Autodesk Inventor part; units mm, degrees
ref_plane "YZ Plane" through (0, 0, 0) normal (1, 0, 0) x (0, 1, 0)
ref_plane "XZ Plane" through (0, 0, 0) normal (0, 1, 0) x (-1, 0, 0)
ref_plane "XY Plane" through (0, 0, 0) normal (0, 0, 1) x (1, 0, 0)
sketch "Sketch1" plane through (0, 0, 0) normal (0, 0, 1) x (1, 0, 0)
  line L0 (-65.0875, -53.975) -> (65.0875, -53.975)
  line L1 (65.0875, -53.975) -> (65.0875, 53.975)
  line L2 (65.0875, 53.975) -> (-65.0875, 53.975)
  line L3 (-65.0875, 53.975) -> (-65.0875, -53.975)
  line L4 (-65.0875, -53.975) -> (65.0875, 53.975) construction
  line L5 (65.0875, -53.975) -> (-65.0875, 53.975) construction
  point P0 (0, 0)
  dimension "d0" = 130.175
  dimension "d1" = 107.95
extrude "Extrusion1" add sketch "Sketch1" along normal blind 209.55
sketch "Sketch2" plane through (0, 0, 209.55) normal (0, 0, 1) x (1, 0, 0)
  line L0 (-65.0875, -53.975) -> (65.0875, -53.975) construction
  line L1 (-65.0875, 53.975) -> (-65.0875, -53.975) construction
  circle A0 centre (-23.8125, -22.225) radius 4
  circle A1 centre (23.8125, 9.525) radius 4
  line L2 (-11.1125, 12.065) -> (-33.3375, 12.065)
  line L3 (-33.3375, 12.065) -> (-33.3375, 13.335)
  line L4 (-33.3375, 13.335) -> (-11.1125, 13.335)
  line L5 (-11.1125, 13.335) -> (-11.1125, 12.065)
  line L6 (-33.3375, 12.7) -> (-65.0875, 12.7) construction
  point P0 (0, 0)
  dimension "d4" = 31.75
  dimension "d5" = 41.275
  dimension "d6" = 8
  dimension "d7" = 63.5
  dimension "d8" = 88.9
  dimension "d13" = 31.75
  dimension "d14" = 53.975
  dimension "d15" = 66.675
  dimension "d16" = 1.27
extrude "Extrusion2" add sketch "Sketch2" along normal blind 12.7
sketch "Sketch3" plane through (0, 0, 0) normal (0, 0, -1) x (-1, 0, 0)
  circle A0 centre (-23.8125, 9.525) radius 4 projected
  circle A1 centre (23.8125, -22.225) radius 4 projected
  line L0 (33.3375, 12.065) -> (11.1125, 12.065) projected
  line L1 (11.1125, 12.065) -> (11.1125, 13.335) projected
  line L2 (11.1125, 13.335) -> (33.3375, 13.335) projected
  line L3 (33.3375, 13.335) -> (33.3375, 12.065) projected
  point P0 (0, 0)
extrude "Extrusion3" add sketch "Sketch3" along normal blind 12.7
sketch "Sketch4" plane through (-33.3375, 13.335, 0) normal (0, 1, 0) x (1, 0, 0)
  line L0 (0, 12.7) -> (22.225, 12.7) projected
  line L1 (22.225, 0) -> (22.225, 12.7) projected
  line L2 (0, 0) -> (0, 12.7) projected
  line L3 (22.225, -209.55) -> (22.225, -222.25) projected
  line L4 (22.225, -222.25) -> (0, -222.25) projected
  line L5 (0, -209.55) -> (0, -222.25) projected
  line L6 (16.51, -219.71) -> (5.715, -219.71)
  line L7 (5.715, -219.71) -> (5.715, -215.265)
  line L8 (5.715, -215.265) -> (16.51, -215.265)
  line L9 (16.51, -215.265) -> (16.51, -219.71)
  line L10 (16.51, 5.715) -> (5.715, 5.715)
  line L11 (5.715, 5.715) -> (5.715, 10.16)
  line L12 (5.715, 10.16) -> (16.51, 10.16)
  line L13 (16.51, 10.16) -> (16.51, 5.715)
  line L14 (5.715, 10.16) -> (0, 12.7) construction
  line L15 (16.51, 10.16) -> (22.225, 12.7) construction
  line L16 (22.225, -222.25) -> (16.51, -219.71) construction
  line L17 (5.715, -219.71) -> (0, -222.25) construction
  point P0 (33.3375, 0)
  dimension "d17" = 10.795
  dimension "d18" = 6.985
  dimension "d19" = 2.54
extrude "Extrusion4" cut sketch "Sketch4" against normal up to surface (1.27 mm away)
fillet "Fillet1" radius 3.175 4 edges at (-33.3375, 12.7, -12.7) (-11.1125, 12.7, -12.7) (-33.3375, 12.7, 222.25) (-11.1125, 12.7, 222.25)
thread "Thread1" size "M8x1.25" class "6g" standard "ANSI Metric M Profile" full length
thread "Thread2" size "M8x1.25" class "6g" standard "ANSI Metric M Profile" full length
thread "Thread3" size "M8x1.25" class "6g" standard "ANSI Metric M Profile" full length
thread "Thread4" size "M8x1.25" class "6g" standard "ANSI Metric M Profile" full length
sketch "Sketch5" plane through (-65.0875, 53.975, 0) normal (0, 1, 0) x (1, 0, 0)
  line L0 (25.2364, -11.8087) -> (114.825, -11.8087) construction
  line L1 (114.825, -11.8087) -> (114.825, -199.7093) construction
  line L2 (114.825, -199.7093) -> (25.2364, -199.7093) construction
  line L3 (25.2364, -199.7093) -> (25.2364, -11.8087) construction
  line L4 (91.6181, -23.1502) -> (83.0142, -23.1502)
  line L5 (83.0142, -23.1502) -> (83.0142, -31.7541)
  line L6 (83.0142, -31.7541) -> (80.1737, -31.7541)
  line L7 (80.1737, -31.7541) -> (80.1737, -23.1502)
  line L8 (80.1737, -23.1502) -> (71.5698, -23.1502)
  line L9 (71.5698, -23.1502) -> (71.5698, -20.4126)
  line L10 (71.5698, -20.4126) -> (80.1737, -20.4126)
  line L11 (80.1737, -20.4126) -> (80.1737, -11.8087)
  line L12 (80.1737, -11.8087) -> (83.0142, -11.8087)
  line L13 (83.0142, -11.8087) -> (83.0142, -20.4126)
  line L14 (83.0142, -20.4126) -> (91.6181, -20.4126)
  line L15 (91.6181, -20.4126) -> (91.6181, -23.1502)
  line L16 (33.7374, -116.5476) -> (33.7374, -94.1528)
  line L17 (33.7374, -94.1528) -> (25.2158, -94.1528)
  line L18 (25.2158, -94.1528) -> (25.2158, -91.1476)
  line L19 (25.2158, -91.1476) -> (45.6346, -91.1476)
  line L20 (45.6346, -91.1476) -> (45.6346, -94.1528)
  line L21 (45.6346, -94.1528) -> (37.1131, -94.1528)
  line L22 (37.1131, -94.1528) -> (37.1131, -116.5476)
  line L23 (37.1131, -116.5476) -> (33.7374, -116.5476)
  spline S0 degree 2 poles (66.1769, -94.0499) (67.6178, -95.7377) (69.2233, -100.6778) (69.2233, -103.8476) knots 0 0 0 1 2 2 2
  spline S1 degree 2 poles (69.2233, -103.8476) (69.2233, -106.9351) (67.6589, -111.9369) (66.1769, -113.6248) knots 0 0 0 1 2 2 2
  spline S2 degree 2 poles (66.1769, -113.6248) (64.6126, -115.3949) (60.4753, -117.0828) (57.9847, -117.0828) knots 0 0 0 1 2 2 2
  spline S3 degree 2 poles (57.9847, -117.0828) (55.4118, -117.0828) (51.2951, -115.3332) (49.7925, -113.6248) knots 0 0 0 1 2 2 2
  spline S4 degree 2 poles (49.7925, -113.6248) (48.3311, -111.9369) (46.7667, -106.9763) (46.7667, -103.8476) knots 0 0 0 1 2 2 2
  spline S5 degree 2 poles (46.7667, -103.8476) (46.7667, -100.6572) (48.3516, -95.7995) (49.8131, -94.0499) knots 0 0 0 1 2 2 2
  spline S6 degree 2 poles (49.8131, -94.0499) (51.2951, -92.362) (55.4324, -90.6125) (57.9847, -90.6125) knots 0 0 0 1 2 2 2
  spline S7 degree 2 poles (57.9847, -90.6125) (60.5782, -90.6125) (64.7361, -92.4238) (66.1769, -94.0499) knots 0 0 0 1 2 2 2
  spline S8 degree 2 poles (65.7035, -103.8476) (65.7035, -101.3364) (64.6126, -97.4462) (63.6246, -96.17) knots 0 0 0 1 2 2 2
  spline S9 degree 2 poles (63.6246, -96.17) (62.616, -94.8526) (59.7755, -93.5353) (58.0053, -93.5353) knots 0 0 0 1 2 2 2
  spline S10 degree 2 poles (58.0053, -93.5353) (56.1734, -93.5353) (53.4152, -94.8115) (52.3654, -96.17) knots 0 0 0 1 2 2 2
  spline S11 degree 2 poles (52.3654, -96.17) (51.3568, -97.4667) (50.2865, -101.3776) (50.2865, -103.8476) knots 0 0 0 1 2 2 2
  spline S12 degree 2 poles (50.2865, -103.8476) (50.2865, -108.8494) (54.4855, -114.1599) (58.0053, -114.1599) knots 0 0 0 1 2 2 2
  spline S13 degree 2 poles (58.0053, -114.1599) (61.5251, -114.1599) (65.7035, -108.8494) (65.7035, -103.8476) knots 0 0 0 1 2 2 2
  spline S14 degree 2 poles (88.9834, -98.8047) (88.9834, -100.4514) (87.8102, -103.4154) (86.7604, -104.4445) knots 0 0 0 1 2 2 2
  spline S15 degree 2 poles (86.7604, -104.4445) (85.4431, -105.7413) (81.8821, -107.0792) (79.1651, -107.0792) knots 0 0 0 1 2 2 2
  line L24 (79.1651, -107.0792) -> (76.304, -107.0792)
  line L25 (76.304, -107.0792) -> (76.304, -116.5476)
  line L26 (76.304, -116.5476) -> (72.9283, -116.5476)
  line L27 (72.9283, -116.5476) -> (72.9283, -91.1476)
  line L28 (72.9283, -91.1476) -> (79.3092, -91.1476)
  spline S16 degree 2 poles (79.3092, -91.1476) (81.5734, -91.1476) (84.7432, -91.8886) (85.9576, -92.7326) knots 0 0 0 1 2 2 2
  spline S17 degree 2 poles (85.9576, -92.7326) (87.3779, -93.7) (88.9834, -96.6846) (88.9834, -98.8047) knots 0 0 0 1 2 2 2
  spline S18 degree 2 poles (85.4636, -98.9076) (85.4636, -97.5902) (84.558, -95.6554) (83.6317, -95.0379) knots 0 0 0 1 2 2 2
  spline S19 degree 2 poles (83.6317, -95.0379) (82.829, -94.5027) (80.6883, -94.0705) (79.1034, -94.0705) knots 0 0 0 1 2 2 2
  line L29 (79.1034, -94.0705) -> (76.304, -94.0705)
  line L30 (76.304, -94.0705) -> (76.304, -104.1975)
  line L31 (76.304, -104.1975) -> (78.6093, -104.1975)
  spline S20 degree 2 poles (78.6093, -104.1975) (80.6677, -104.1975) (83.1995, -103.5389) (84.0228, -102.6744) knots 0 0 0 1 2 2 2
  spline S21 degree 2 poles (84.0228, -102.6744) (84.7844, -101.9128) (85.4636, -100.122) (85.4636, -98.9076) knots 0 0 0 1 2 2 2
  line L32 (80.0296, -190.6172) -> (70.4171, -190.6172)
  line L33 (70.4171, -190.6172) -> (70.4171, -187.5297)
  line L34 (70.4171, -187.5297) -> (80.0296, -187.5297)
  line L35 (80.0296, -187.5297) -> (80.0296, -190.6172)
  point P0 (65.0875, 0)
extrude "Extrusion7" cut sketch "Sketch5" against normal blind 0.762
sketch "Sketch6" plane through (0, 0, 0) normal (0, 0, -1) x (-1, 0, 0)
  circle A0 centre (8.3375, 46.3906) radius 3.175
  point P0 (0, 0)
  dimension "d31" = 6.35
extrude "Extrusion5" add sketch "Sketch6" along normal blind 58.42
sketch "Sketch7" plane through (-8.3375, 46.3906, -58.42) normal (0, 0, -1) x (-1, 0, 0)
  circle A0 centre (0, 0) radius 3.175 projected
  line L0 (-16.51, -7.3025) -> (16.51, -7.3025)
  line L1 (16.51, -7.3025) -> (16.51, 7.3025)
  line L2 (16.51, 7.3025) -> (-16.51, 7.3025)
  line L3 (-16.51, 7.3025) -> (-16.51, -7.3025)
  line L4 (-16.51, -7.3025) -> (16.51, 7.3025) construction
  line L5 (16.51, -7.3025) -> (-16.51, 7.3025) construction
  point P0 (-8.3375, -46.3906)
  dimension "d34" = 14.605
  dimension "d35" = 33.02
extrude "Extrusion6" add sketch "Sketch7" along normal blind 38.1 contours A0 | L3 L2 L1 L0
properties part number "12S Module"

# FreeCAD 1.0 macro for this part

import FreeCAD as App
import Part
import Sketcher
Q = App.Units.Quantity


def edges_at(feature, points):
    """Names of the edges that pass closest to the given points."""
    edges = feature.Shape.Edges
    near = lambda p: min(range(len(edges)), key=lambda i: edges[i].distToShape(Part.Vertex(*p))[0])
    return sorted({f"Edge{near(p) + 1}" for p in points})

doc = App.newDocument("Part")
body = doc.addObject("PartDesign::Body", "Body")

# Sketch on XY plane
sketch1 = body.newObject("Sketcher::SketchObject", "Sketch")
sketch1.AttachmentSupport = (doc.getObject("XY_Plane"), [""])
sketch1.MapMode = "FlatFace"
sketch1.addGeometry([
    Part.LineSegment(App.Vector(-65.0875, 53.975, 0), App.Vector(-65.0875, -53.975, 0)),
    Part.LineSegment(App.Vector(-65.0875, -53.975, 0), App.Vector(65.0875, -53.975, 0)),
    Part.LineSegment(App.Vector(65.0875, -53.975, 0), App.Vector(65.0875, 53.975, 0)),
    Part.LineSegment(App.Vector(65.0875, 53.975, 0), App.Vector(-65.0875, 53.975, 0)),
], False)
sketch1.addConstraint([
    Sketcher.Constraint("Coincident", 0, 2, 1, 1),
    Sketcher.Constraint("Coincident", 1, 2, 2, 1),
    Sketcher.Constraint("Coincident", 2, 2, 3, 1),
    Sketcher.Constraint("Coincident", 3, 2, 0, 1),
    Sketcher.Constraint("Vertical", 0),
    Sketcher.Constraint("Horizontal", 1),
    Sketcher.Constraint("Vertical", 2),
    Sketcher.Constraint("Horizontal", 3),
    Sketcher.Constraint("Symmetric", 0, 2, 2, 2, -1, 1),
    Sketcher.Constraint("DistanceY", 0, 2, 0, 1, Q("4.25 in")),
    Sketcher.Constraint("DistanceX", 1, 1, 1, 2, Q("5.125 in")),
])
pad1 = body.newObject("PartDesign::Pad", "Pad")
pad1.Profile = sketch1
pad1.Length = Q("8.25 in")

# Sketch on XY plane
sketch2 = body.newObject("Sketcher::SketchObject", "Sketch001")
sketch2.AttachmentSupport = (doc.getObject("XY_Plane"), [""])
sketch2.MapMode = "FlatFace"
sketch2.AttachmentOffset = App.Placement(App.Vector(0, 0, 8.25 * 25.4), App.Rotation())
sketch2.addGeometry([
    Part.Circle(App.Vector(-23.8125, -22.225, 0), App.Vector(0, 0, 1), 4),  # 0
    Part.Circle(App.Vector(23.8125, 9.525, 0), App.Vector(0, 0, 1), 4),  # 1
    Part.LineSegment(App.Vector(-33.3375, 12.065, 0), App.Vector(-11.1125, 12.065, 0)),  # 2
    Part.LineSegment(App.Vector(-11.1125, 12.065, 0), App.Vector(-11.1125, 13.335, 0)),  # 3
    Part.LineSegment(App.Vector(-11.1125, 13.335, 0), App.Vector(-33.3375, 13.335, 0)),  # 4
    Part.LineSegment(App.Vector(-33.3375, 13.335, 0), App.Vector(-33.3375, 12.065, 0)),  # 5
], False)
sketch2.addConstraint([
    Sketcher.Constraint("Coincident", 2, 2, 3, 1),
    Sketcher.Constraint("Coincident", 3, 2, 4, 1),
    Sketcher.Constraint("Coincident", 4, 2, 5, 1),
    Sketcher.Constraint("Coincident", 5, 2, 2, 1),
    Sketcher.Constraint("Horizontal", 2),
    Sketcher.Constraint("Vertical", 3),
    Sketcher.Constraint("Horizontal", 4),
    Sketcher.Constraint("Vertical", 5),
    Sketcher.Constraint("Equal", 0, 1),
    Sketcher.Constraint("DistanceY", 3, 1, 3, 2, Q("0.05 in")),
    Sketcher.Constraint("Diameter", 0, Q("8 mm")),
    Sketcher.Constraint("DistanceY", 0, 3, 1, 3, Q("1.25 in")),
    Sketcher.Constraint("DistanceY", 1, 3, 2, 2, Q("0.1 in")),
    Sketcher.Constraint("DistanceX", 0, 3, 2, 2, Q("0.5 in")),
    Sketcher.Constraint("DistanceX", 2, 1, 2, 2, Q("0.875 in")),
    Sketcher.Constraint("DistanceX", 4, 2, 1, 3, Q("2.25 in")),
    Sketcher.Constraint("DistanceX", 0, 3, -1, 1, Q("0.9375 in")),
    Sketcher.Constraint("DistanceY", 0, 3, -1, 1, Q("0.875 in")),
])
pad2 = body.newObject("PartDesign::Pad", "Pad001")
pad2.Profile = sketch2
pad2.Length = Q("0.5 in")

# Sketch on XY plane
sketch3 = body.newObject("Sketcher::SketchObject", "Sketch002")
sketch3.AttachmentSupport = (doc.getObject("XY_Plane"), [""])
sketch3.MapMode = "FlatFace"
sketch3.addGeometry([
    Part.Circle(App.Vector(23.8125, 9.525, 0), App.Vector(0, 0, 1), 4),  # 0
    Part.Circle(App.Vector(-23.8125, -22.225, 0), App.Vector(0, 0, 1), 4),  # 1
    Part.LineSegment(App.Vector(-11.1125, 12.065, 0), App.Vector(-33.3375, 12.065, 0)),  # 2
    Part.LineSegment(App.Vector(-33.3375, 12.065, 0), App.Vector(-33.3375, 13.335, 0)),  # 3
    Part.LineSegment(App.Vector(-33.3375, 13.335, 0), App.Vector(-11.1125, 13.335, 0)),  # 4
    Part.LineSegment(App.Vector(-11.1125, 13.335, 0), App.Vector(-11.1125, 12.065, 0)),  # 5
], False)
sketch3.addConstraint([
    Sketcher.Constraint("Coincident", 2, 2, 3, 1),
    Sketcher.Constraint("Coincident", 3, 2, 4, 1),
    Sketcher.Constraint("Coincident", 4, 2, 5, 1),
    Sketcher.Constraint("Coincident", 5, 2, 2, 1),
    Sketcher.Constraint("Horizontal", 2),
    Sketcher.Constraint("Vertical", 3),
    Sketcher.Constraint("Horizontal", 4),
    Sketcher.Constraint("Vertical", 5),
    Sketcher.Constraint("Equal", 0, 1),
    Sketcher.Constraint("DistanceY", 3, 1, 3, 2, Q("0.05 in")),
    Sketcher.Constraint("DistanceY", 0, 3, 2, 2, Q("0.1 in")),
    Sketcher.Constraint("DistanceY", 1, 3, 3, 2, Q("1.4 in")),
    Sketcher.Constraint("DistanceX", 1, 3, 4, 2, Q("0.5 in")),
    Sketcher.Constraint("Diameter", 0, Q("8 mm")),
    Sketcher.Constraint("DistanceX", 2, 2, 2, 1, Q("0.875 in")),
    Sketcher.Constraint("DistanceX", 2, 2, 0, 3, Q("2.25 in")),
    Sketcher.Constraint("DistanceX", -1, 1, 0, 3, Q("0.9375 in")),
    Sketcher.Constraint("DistanceY", -1, 1, 0, 3, Q("0.375 in")),
])
pad3 = body.newObject("PartDesign::Pad", "Pad002")
pad3.Profile = sketch3
pad3.Length = Q("0.5 in")
pad3.Reversed = True

# Sketch on XZ plane
sketch4 = body.newObject("Sketcher::SketchObject", "Sketch003")
sketch4.AttachmentSupport = (doc.getObject("XZ_Plane"), [""])
sketch4.MapMode = "FlatFace"
sketch4.AttachmentOffset = App.Placement(App.Vector(0, 0, -0.525 * 25.4), App.Rotation())
sketch4.addGeometry([
    Part.LineSegment(App.Vector(-27.6225, 219.71, 0), App.Vector(-16.8275, 219.71, 0)),  # 0
    Part.LineSegment(App.Vector(-16.8275, 219.71, 0), App.Vector(-16.8275, 215.265, 0)),  # 1
    Part.LineSegment(App.Vector(-16.8275, 215.265, 0), App.Vector(-27.6225, 215.265, 0)),  # 2
    Part.LineSegment(App.Vector(-27.6225, 215.265, 0), App.Vector(-27.6225, 219.71, 0)),  # 3
    Part.LineSegment(App.Vector(-27.6225, -5.715, 0), App.Vector(-16.8275, -5.715, 0)),  # 4
    Part.LineSegment(App.Vector(-16.8275, -5.715, 0), App.Vector(-16.8275, -10.16, 0)),  # 5
    Part.LineSegment(App.Vector(-16.8275, -10.16, 0), App.Vector(-27.6225, -10.16, 0)),  # 6
    Part.LineSegment(App.Vector(-27.6225, -10.16, 0), App.Vector(-27.6225, -5.715, 0)),  # 7
], False)
sketch4.addConstraint([
    Sketcher.Constraint("Coincident", 0, 2, 1, 1),
    Sketcher.Constraint("Coincident", 1, 2, 2, 1),
    Sketcher.Constraint("Coincident", 2, 2, 3, 1),
    Sketcher.Constraint("Coincident", 3, 2, 0, 1),
    Sketcher.Constraint("Coincident", 4, 2, 5, 1),
    Sketcher.Constraint("Coincident", 5, 2, 6, 1),
    Sketcher.Constraint("Coincident", 6, 2, 7, 1),
    Sketcher.Constraint("Coincident", 7, 2, 4, 1),
    Sketcher.Constraint("Horizontal", 0),
    Sketcher.Constraint("Vertical", 1),
    Sketcher.Constraint("Horizontal", 2),
    Sketcher.Constraint("Vertical", 3),
    Sketcher.Constraint("Horizontal", 4),
    Sketcher.Constraint("Vertical", 5),
    Sketcher.Constraint("Horizontal", 6),
    Sketcher.Constraint("Vertical", 7),
    Sketcher.Constraint("Vertical", 1, 2, 4, 2),
    Sketcher.Constraint("Vertical", 3, 2, 6, 2),
    Sketcher.Constraint("Equal", 3, 5),
    Sketcher.Constraint("DistanceX", 0, 1, 0, 2, Q("0.425 in")),
    Sketcher.Constraint("DistanceY", 5, 2, -1, 1, Q("0.4 in")),
    Sketcher.Constraint("DistanceY", 4, 2, 1, 2, Q("8.7 in")),
    Sketcher.Constraint("DistanceY", 1, 2, 1, 1, Q("0.175 in")),
    Sketcher.Constraint("DistanceX", 0, 2, -1, 1, Q("0.6625 in")),
])
pocket1 = body.newObject("PartDesign::Pocket", "Pocket")
pocket1.Profile = sketch4
pocket1.Length = Q("0.05 in")
pocket1.Reversed = True
doc.recompute()

fillet = body.newObject("PartDesign::Fillet", "Fillet")
fillet.Base = (pocket1, edges_at(pocket1, [
    (-33.337, 12.7, -12.7),
    (-11.113, 12.7, -12.7),
    (-33.337, 12.7, 222.25),
    (-11.113, 12.7, 222.25),
]))
fillet.Radius = Q("0.125 in")

# Sketch on XZ plane
sketch5 = body.newObject("Sketcher::SketchObject", "Sketch004")
sketch5.AttachmentSupport = (doc.getObject("XZ_Plane"), [""])
sketch5.MapMode = "FlatFace"
sketch5.AttachmentOffset = App.Placement(App.Vector(0, 0, -2.125 * 25.4), App.Rotation())
sketch5.addGeometry([
    Part.LineSegment(App.Vector(17.9267, 23.1502, 0), App.Vector(26.5306, 23.1502, 0)),  # 0
    Part.LineSegment(App.Vector(26.5306, 23.1502, 0), App.Vector(26.5306, 20.4126, 0)),  # 1
    Part.LineSegment(App.Vector(26.5306, 20.4126, 0), App.Vector(17.9267, 20.4126, 0)),  # 2
    Part.LineSegment(App.Vector(17.9267, 20.4126, 0), App.Vector(17.9267, 11.8087, 0)),  # 3
    Part.LineSegment(App.Vector(17.9267, 11.8087, 0), App.Vector(15.0862, 11.8087, 0)),  # 4
    Part.LineSegment(App.Vector(15.0862, 11.8087, 0), App.Vector(15.0862, 20.4126, 0)),  # 5
    Part.LineSegment(App.Vector(15.0862, 20.4126, 0), App.Vector(6.4823, 20.4126, 0)),  # 6
    Part.LineSegment(App.Vector(6.4823, 20.4126, 0), App.Vector(6.4823, 23.1502, 0)),  # 7
    Part.LineSegment(App.Vector(6.4823, 23.1502, 0), App.Vector(15.0862, 23.1502, 0)),  # 8
    Part.LineSegment(App.Vector(15.0862, 23.1502, 0), App.Vector(15.0862, 31.7541, 0)),  # 9
    Part.LineSegment(App.Vector(15.0862, 31.7541, 0), App.Vector(17.9267, 31.7541, 0)),  # 10
    Part.LineSegment(App.Vector(17.9267, 31.7541, 0), App.Vector(17.9267, 23.1502, 0)),  # 11
    Part.LineSegment(App.Vector(-31.3501, 94.1528, 0), App.Vector(-31.3501, 116.5476, 0)),  # 12
    Part.LineSegment(App.Vector(-31.3501, 116.5476, 0), App.Vector(-27.9744, 116.5476, 0)),  # 13
    Part.LineSegment(App.Vector(-27.9744, 116.5476, 0), App.Vector(-27.9744, 94.1528, 0)),  # 14
    Part.LineSegment(App.Vector(-27.9744, 94.1528, 0), App.Vector(-19.4529, 94.1528, 0)),  # 15
    Part.LineSegment(App.Vector(-19.4529, 94.1528, 0), App.Vector(-19.4529, 91.1476, 0)),  # 16
    Part.LineSegment(App.Vector(-19.4529, 91.1476, 0), App.Vector(-39.8717, 91.1476, 0)),  # 17
    Part.LineSegment(App.Vector(-39.8717, 91.1476, 0), App.Vector(-39.8717, 94.1528, 0)),  # 18
    Part.LineSegment(App.Vector(-39.8717, 94.1528, 0), App.Vector(-31.3501, 94.1528, 0)),  # 19
    Part.BSplineCurve([App.Vector(1.0894, 94.0499, 0), App.Vector(2.5303, 95.7377, 0), App.Vector(4.1358, 100.6778, 0), App.Vector(4.1358, 103.8476, 0)], [3, 1, 3], [0, 1, 2], False, 2, [1, 1, 1, 1], False),  # 20
    Part.BSplineCurve([App.Vector(-7.1028, 90.6125, 0), App.Vector(-4.5093, 90.6125, 0), App.Vector(-0.3514, 92.4238, 0), App.Vector(1.0894, 94.0499, 0)], [3, 1, 3], [0, 1, 2], False, 2, [1, 1, 1, 1], False),  # 21
    Part.BSplineCurve([App.Vector(-15.2744, 94.0499, 0), App.Vector(-13.7924, 92.362, 0), App.Vector(-9.6551, 90.6125, 0), App.Vector(-7.1028, 90.6125, 0)], [3, 1, 3], [0, 1, 2], False, 2, [1, 1, 1, 1], False),  # 22
    Part.BSplineCurve([App.Vector(-18.3208, 103.8476, 0), App.Vector(-18.3208, 100.6572, 0), App.Vector(-16.7359, 95.7995, 0), App.Vector(-15.2744, 94.0499, 0)], [3, 1, 3], [0, 1, 2], False, 2, [1, 1, 1, 1], False),  # 23
    Part.BSplineCurve([App.Vector(-15.295, 113.6248, 0), App.Vector(-16.7564, 111.9369, 0), App.Vector(-18.3208, 106.9763, 0), App.Vector(-18.3208, 103.8476, 0)], [3, 1, 3], [0, 1, 2], False, 2, [1, 1, 1, 1], False),  # 24
    Part.BSplineCurve([App.Vector(-7.1028, 117.0828, 0), App.Vector(-9.6757, 117.0828, 0), App.Vector(-13.7924, 115.3332, 0), App.Vector(-15.295, 113.6248, 0)], [3, 1, 3], [0, 1, 2], False, 2, [1, 1, 1, 1], False),  # 25
    Part.BSplineCurve([App.Vector(1.0894, 113.6248, 0), App.Vector(-0.4749, 115.3949, 0), App.Vector(-4.6122, 117.0828, 0), App.Vector(-7.1028, 117.0828, 0)], [3, 1, 3], [0, 1, 2], False, 2, [1, 1, 1, 1], False),  # 26
    Part.BSplineCurve([App.Vector(4.1358, 103.8476, 0), App.Vector(4.1358, 106.9351, 0), App.Vector(2.5714, 111.9369, 0), App.Vector(1.0894, 113.6248, 0)], [3, 1, 3], [0, 1, 2], False, 2, [1, 1, 1, 1], False),  # 27
    Part.BSplineCurve([App.Vector(0.616, 103.8476, 0), App.Vector(0.616, 101.3364, 0), App.Vector(-0.4749, 97.4462, 0), App.Vector(-1.4629, 96.17, 0)], [3, 1, 3], [0, 1, 2], False, 2, [1, 1, 1, 1], False),  # 28
    Part.BSplineCurve([App.Vector(-7.0822, 114.1599, 0), App.Vector(-3.5624, 114.1599, 0), App.Vector(0.616, 108.8494, 0), App.Vector(0.616, 103.8476, 0)], [3, 1, 3], [0, 1, 2], False, 2, [1, 1, 1, 1], False),  # 29
    Part.BSplineCurve([App.Vector(-14.801, 103.8476, 0), App.Vector(-14.801, 108.8494, 0), App.Vector(-10.602, 114.1599, 0), App.Vector(-7.0822, 114.1599, 0)], [3, 1, 3], [0, 1, 2], False, 2, [1, 1, 1, 1], False),  # 30
    Part.BSplineCurve([App.Vector(-12.7221, 96.17, 0), App.Vector(-13.7307, 97.4667, 0), App.Vector(-14.801, 101.3776, 0), App.Vector(-14.801, 103.8476, 0)], [3, 1, 3], [0, 1, 2], False, 2, [1, 1, 1, 1], False),  # 31
    Part.BSplineCurve([App.Vector(-7.0822, 93.5353, 0), App.Vector(-8.9141, 93.5353, 0), App.Vector(-11.6723, 94.8115, 0), App.Vector(-12.7221, 96.17, 0)], [3, 1, 3], [0, 1, 2], False, 2, [1, 1, 1, 1], False),  # 32
    Part.BSplineCurve([App.Vector(-1.4629, 96.17, 0), App.Vector(-2.4715, 94.8526, 0), App.Vector(-5.312, 93.5353, 0), App.Vector(-7.0822, 93.5353, 0)], [3, 1, 3], [0, 1, 2], False, 2, [1, 1, 1, 1], False),  # 33
    Part.BSplineCurve([App.Vector(23.8959, 98.8047, 0), App.Vector(23.8959, 100.4514, 0), App.Vector(22.7227, 103.4154, 0), App.Vector(21.6729, 104.4445, 0)], [3, 1, 3], [0, 1, 2], False, 2, [1, 1, 1, 1], False),  # 34
    Part.BSplineCurve([App.Vector(20.8701, 92.7326, 0), App.Vector(22.2904, 93.7, 0), App.Vector(23.8959, 96.6846, 0), App.Vector(23.8959, 98.8047, 0)], [3, 1, 3], [0, 1, 2], False, 2, [1, 1, 1, 1], False),  # 35
    Part.BSplineCurve([App.Vector(14.2217, 91.1476, 0), App.Vector(16.4859, 91.1476, 0), App.Vector(19.6557, 91.8886, 0), App.Vector(20.8701, 92.7326, 0)], [3, 1, 3], [0, 1, 2], False, 2, [1, 1, 1, 1], False),  # 36
    Part.LineSegment(App.Vector(14.2217, 91.1476, 0), App.Vector(7.8408, 91.1476, 0)),  # 37
    Part.LineSegment(App.Vector(7.8408, 91.1476, 0), App.Vector(7.8408, 116.5476, 0)),  # 38
    Part.LineSegment(App.Vector(7.8408, 116.5476, 0), App.Vector(11.2165, 116.5476, 0)),  # 39
    Part.LineSegment(App.Vector(11.2165, 116.5476, 0), App.Vector(11.2165, 107.0792, 0)),  # 40
    Part.LineSegment(App.Vector(11.2165, 107.0792, 0), App.Vector(14.0776, 107.0792, 0)),  # 41
    Part.BSplineCurve([App.Vector(21.6729, 104.4445, 0), App.Vector(20.3556, 105.7413, 0), App.Vector(16.7946, 107.0792, 0), App.Vector(14.0776, 107.0792, 0)], [3, 1, 3], [0, 1, 2], False, 2, [1, 1, 1, 1], False),  # 42
    Part.BSplineCurve([App.Vector(20.3761, 98.9076, 0), App.Vector(20.3761, 97.5902, 0), App.Vector(19.4705, 95.6554, 0), App.Vector(18.5442, 95.0379, 0)], [3, 1, 3], [0, 1, 2], False, 2, [1, 1, 1, 1], False),  # 43
    Part.BSplineCurve([App.Vector(18.9353, 102.6744, 0), App.Vector(19.6969, 101.9128, 0), App.Vector(20.3761, 100.122, 0), App.Vector(20.3761, 98.9076, 0)], [3, 1, 3], [0, 1, 2], False, 2, [1, 1, 1, 1], False),  # 44
    Part.BSplineCurve([App.Vector(13.5218, 104.1975, 0), App.Vector(15.5802, 104.1975, 0), App.Vector(18.112, 103.5389, 0), App.Vector(18.9353, 102.6744, 0)], [3, 1, 3], [0, 1, 2], False, 2, [1, 1, 1, 1], False),  # 45
    Part.LineSegment(App.Vector(13.5218, 104.1975, 0), App.Vector(11.2165, 104.1975, 0)),  # 46
    Part.LineSegment(App.Vector(11.2165, 104.1975, 0), App.Vector(11.2165, 94.0705, 0)),  # 47
    Part.LineSegment(App.Vector(11.2165, 94.0705, 0), App.Vector(14.0159, 94.0705, 0)),  # 48
    Part.BSplineCurve([App.Vector(18.5442, 95.0379, 0), App.Vector(17.7415, 94.5027, 0), App.Vector(15.6008, 94.0705, 0), App.Vector(14.0159, 94.0705, 0)], [3, 1, 3], [0, 1, 2], False, 2, [1, 1, 1, 1], False),  # 49
    Part.LineSegment(App.Vector(5.3296, 190.6172, 0), App.Vector(14.9421, 190.6172, 0)),  # 50
    Part.LineSegment(App.Vector(14.9421, 190.6172, 0), App.Vector(14.9421, 187.5297, 0)),  # 51
    Part.LineSegment(App.Vector(14.9421, 187.5297, 0), App.Vector(5.3296, 187.5297, 0)),  # 52
    Part.LineSegment(App.Vector(5.3296, 187.5297, 0), App.Vector(5.3296, 190.6172, 0)),  # 53
], False)
sketch5.addConstraint([
    Sketcher.Constraint("Block", 20),
    Sketcher.Constraint("Block", 21),
    Sketcher.Constraint("Block", 22),
    Sketcher.Constraint("Block", 23),
    Sketcher.Constraint("Block", 24),
    Sketcher.Constraint("Block", 25),
    Sketcher.Constraint("Block", 26),
    Sketcher.Constraint("Block", 27),
    Sketcher.Constraint("Block", 28),
    Sketcher.Constraint("Block", 29),
    Sketcher.Constraint("Block", 30),
    Sketcher.Constraint("Block", 31),
    Sketcher.Constraint("Block", 32),
    Sketcher.Constraint("Block", 33),
    Sketcher.Constraint("Block", 34),
    Sketcher.Constraint("Block", 35),
    Sketcher.Constraint("Block", 36),
    Sketcher.Constraint("Block", 42),
    Sketcher.Constraint("Block", 43),
    Sketcher.Constraint("Block", 44),
    Sketcher.Constraint("Block", 45),
    Sketcher.Constraint("Block", 49),
    Sketcher.Constraint("Coincident", 0, 2, 1, 1),
    Sketcher.Constraint("Coincident", 1, 2, 2, 1),
    Sketcher.Constraint("Coincident", 2, 2, 3, 1),
    Sketcher.Constraint("Coincident", 3, 2, 4, 1),
    Sketcher.Constraint("Coincident", 4, 2, 5, 1),
    Sketcher.Constraint("Coincident", 5, 2, 6, 1),
    Sketcher.Constraint("Coincident", 6, 2, 7, 1),
    Sketcher.Constraint("Coincident", 7, 2, 8, 1),
    Sketcher.Constraint("Coincident", 8, 2, 9, 1),
    Sketcher.Constraint("Coincident", 9, 2, 10, 1),
    Sketcher.Constraint("Coincident", 10, 2, 11, 1),
    Sketcher.Constraint("Coincident", 11, 2, 0, 1),
    Sketcher.Constraint("Coincident", 12, 2, 13, 1),
    Sketcher.Constraint("Coincident", 13, 2, 14, 1),
    Sketcher.Constraint("Coincident", 14, 2, 15, 1),
    Sketcher.Constraint("Coincident", 15, 2, 16, 1),
    Sketcher.Constraint("Coincident", 16, 2, 17, 1),
    Sketcher.Constraint("Coincident", 17, 2, 18, 1),
    Sketcher.Constraint("Coincident", 18, 2, 19, 1),
    Sketcher.Constraint("Coincident", 19, 2, 12, 1),
    Sketcher.Constraint("Coincident", 36, 1, 37, 1),
    Sketcher.Constraint("Coincident", 37, 2, 38, 1),
    Sketcher.Constraint("Coincident", 38, 2, 39, 1),
    Sketcher.Constraint("Coincident", 39, 2, 40, 1),
    Sketcher.Constraint("Coincident", 40, 2, 41, 1),
    Sketcher.Constraint("Coincident", 41, 2, 42, 2),
    Sketcher.Constraint("Coincident", 45, 1, 46, 1),
    Sketcher.Constraint("Coincident", 46, 2, 47, 1),
    Sketcher.Constraint("Coincident", 47, 2, 48, 1),
    Sketcher.Constraint("Coincident", 48, 2, 49, 2),
    Sketcher.Constraint("Coincident", 50, 2, 51, 1),
    Sketcher.Constraint("Coincident", 51, 2, 52, 1),
    Sketcher.Constraint("Coincident", 52, 2, 53, 1),
    Sketcher.Constraint("Coincident", 53, 2, 50, 1),
    Sketcher.Constraint("Horizontal", 0),
    Sketcher.Constraint("Vertical", 1),
    Sketcher.Constraint("Horizontal", 2),
    Sketcher.Constraint("Vertical", 3),
    Sketcher.Constraint("Horizontal", 4),
    Sketcher.Constraint("Vertical", 5),
    Sketcher.Constraint("Horizontal", 6),
    Sketcher.Constraint("Vertical", 7),
    Sketcher.Constraint("Horizontal", 8),
    Sketcher.Constraint("Vertical", 9),
    Sketcher.Constraint("Horizontal", 10),
    Sketcher.Constraint("Vertical", 11),
    Sketcher.Constraint("Vertical", 12),
    Sketcher.Constraint("Horizontal", 13),
    Sketcher.Constraint("Vertical", 14),
    Sketcher.Constraint("Horizontal", 15),
    Sketcher.Constraint("Vertical", 16),
    Sketcher.Constraint("Horizontal", 17),
    Sketcher.Constraint("Vertical", 18),
    Sketcher.Constraint("Horizontal", 19),
    Sketcher.Constraint("Horizontal", 37),
    Sketcher.Constraint("Vertical", 38),
    Sketcher.Constraint("Horizontal", 39),
    Sketcher.Constraint("Vertical", 40),
    Sketcher.Constraint("Horizontal", 41),
    Sketcher.Constraint("Horizontal", 46),
    Sketcher.Constraint("Vertical", 47),
    Sketcher.Constraint("Horizontal", 48),
    Sketcher.Constraint("Horizontal", 50),
    Sketcher.Constraint("Vertical", 51),
    Sketcher.Constraint("Horizontal", 52),
    Sketcher.Constraint("Vertical", 53),
    Sketcher.Constraint("Horizontal", 2, 2, 5, 2),
    Sketcher.Constraint("Horizontal", 0, 2, 7, 2),
    Sketcher.Constraint("Horizontal", 15, 2, 18, 2),
    Sketcher.Constraint("Horizontal", 17, 2, 37, 2),
    Sketcher.Constraint("Horizontal", 13, 2, 38, 2),
    Sketcher.Constraint("Vertical", 5, 2, 8, 2),
    Sketcher.Constraint("Vertical", 3, 2, 10, 2),
    Sketcher.Constraint("Vertical", 40, 2, 46, 2),
    Sketcher.Constraint("Equal", 2, 6),
    Sketcher.Constraint("Equal", 15, 19),
    Sketcher.Constraint("Equal", 13, 39),
    Sketcher.Constraint("Equal", 8, 3),
    Sketcher.Constraint("Equal", 5, 9),
    Sketcher.Constraint("DistanceY", 38, 1, 38, 2, Q("1 in")),
    Sketcher.Constraint("DistanceX", 13, 1, 13, 2, Q("0.1329 in")),
    Sketcher.Constraint("DistanceX", 15, 1, 15, 2, Q("0.3355 in")),
    Sketcher.Constraint("DistanceX", 0, 1, 0, 2, Q("8.604 mm")),
    Sketcher.Constraint("DistanceX", 4, 2, 4, 1, Q("2.8405 mm")),
    Sketcher.Constraint("DistanceX", 37, 2, 37, 1, Q("6.381 mm")),
    Sketcher.Constraint("DistanceX", 50, 1, 50, 2, Q("9.6125 mm")),
    Sketcher.Constraint("DistanceY", 1, 2, 1, 1, Q("2.7376 mm")),
    Sketcher.Constraint("DistanceY", 12, 1, 12, 2, Q("22.3948 mm")),
    Sketcher.Constraint("DistanceY", 51, 2, 51, 1, Q("3.0875 mm")),
    Sketcher.Constraint("DistanceX", -1, 1, 0, 2, Q("1.0445 in")),
    Sketcher.Constraint("DistanceY", -1, 1, 3, 2, Q("0.4649 in")),
    Sketcher.Constraint("DistanceX", 12, 2, 9, 2, Q("1.8282 in")),
    Sketcher.Constraint("DistanceY", 41, 2, 50, 2, Q("3.2889 in")),
    Sketcher.Constraint("DistanceX", -1, 1, 50, 2, Q("14.942 mm")),
])
pocket2 = body.newObject("PartDesign::Pocket", "Pocket001")
pocket2.Profile = sketch5
pocket2.Length = Q("0.03 in")
pocket2.Reversed = True

# Sketch on XY plane
sketch6 = body.newObject("Sketcher::SketchObject", "Sketch005")
sketch6.AttachmentSupport = (doc.getObject("XY_Plane"), [""])
sketch6.MapMode = "FlatFace"
sketch6.addGeometry(Part.Circle(App.Vector(-8.3375, 46.3906, 0), App.Vector(0, 0, 1), 3.175), False)
sketch6.addConstraint([
    Sketcher.Constraint("Diameter", 0, Q("0.25 in")),
    Sketcher.Constraint("DistanceY", -1, 1, 0, 3, Q("1.8264 in")),
    Sketcher.Constraint("DistanceX", 0, 3, -1, 1, Q("8.3375 mm")),
])
pad4 = body.newObject("PartDesign::Pad", "Pad003")
pad4.Profile = sketch6
pad4.Length = Q("2.3 in")
pad4.Reversed = True

# Sketch on XY plane
sketch7 = body.newObject("Sketcher::SketchObject", "Sketch006")
sketch7.AttachmentSupport = (doc.getObject("XY_Plane"), [""])
sketch7.MapMode = "FlatFace"
sketch7.AttachmentOffset = App.Placement(App.Vector(0, 0, -2.3 * 25.4), App.Rotation())
sketch7.addGeometry([
    Part.LineSegment(App.Vector(8.1725, 53.6931, 0), App.Vector(8.1725, 39.0881, 0)),
    Part.LineSegment(App.Vector(8.1725, 39.0881, 0), App.Vector(-24.8475, 39.0881, 0)),
    Part.LineSegment(App.Vector(-24.8475, 39.0881, 0), App.Vector(-24.8475, 53.6931, 0)),
    Part.LineSegment(App.Vector(-24.8475, 53.6931, 0), App.Vector(8.1725, 53.6931, 0)),
], False)
sketch7.addConstraint([
    Sketcher.Constraint("Coincident", 0, 2, 1, 1),
    Sketcher.Constraint("Coincident", 1, 2, 2, 1),
    Sketcher.Constraint("Coincident", 2, 2, 3, 1),
    Sketcher.Constraint("Coincident", 3, 2, 0, 1),
    Sketcher.Constraint("Vertical", 0),
    Sketcher.Constraint("Horizontal", 1),
    Sketcher.Constraint("Vertical", 2),
    Sketcher.Constraint("Horizontal", 3),
    Sketcher.Constraint("DistanceX", 1, 2, 1, 1, Q("1.3 in")),
    Sketcher.Constraint("DistanceY", 0, 2, 0, 1, Q("0.575 in")),
    Sketcher.Constraint("DistanceY", -1, 1, 0, 2, Q("1.5389 in")),
    Sketcher.Constraint("DistanceX", -1, 1, 0, 2, Q("8.1725 mm")),
])
pad5 = body.newObject("PartDesign::Pad", "Pad004")
pad5.Profile = sketch7
pad5.Length = Q("1.5 in")
pad5.Reversed = True

doc.recompute()
